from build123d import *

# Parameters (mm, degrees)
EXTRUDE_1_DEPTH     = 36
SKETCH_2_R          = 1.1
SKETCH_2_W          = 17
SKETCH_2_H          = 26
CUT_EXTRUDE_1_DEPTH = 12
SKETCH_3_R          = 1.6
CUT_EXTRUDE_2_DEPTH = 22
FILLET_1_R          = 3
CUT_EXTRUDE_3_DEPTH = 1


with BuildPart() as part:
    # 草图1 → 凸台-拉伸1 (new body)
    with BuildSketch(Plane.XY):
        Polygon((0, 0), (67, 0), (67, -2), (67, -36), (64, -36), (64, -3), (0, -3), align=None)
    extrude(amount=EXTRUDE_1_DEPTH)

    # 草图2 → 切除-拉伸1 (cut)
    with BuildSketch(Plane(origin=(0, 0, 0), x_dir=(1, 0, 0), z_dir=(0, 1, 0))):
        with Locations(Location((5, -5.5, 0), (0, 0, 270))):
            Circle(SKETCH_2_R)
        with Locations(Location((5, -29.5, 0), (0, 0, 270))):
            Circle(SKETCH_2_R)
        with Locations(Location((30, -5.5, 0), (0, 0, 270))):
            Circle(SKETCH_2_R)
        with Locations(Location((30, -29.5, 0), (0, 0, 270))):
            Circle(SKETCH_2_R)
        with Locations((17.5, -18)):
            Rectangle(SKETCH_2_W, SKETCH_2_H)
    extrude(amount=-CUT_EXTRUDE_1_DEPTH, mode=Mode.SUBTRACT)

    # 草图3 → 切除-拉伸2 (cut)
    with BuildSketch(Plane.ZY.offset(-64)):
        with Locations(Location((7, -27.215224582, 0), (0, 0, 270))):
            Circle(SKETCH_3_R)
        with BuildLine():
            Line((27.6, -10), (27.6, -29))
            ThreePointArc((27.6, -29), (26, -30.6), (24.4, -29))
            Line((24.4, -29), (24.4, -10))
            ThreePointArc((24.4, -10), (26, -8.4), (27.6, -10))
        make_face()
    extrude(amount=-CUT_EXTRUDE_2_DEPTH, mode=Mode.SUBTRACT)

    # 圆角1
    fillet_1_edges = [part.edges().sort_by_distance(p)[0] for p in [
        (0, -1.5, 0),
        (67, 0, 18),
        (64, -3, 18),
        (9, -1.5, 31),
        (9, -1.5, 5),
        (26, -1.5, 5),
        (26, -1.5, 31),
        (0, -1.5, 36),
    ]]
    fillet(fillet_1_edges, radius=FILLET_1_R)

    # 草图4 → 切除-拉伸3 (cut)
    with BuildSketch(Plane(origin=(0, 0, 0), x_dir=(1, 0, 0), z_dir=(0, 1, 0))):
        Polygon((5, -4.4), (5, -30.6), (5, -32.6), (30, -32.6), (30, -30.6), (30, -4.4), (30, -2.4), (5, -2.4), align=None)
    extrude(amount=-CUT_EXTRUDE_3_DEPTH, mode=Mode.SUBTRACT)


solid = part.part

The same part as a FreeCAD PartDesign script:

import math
import FreeCAD as App
import Part
import Sketcher


def edges_at(feature, points):
    """Names of the edges that pass closest to the given points."""
    edges = feature.Shape.Edges
    near = lambda p: min(range(len(edges)), key=lambda i: edges[i].distToShape(Part.Vertex(*p))[0])
    return sorted({f"Edge{near(p) + 1}" for p in points})

doc = App.newDocument("Part")
params = doc.addObject("Spreadsheet::Sheet", "Params")
for row, (alias, value) in enumerate([
    ("sketch1_width", "67 mm"),
    ("sketch1_width2", "64 mm"),
    ("sketch1_height", "33 mm"),
    ("pad1_length", "36 mm"),
    ("sketch2_diameter", "2.2 mm"),
    ("sketch2_width", "17 mm"),
    ("sketch2_height", "26 mm"),
    ("pocket1_length", "12 mm"),
    ("sketch3_diameter", "3.2 mm"),
    ("sketch3_width", "19 mm"),
    ("pocket2_length", "22 mm"),
    ("fillet_radius", "3 mm"),
    ("sketch4_width", "25 mm"),
    ("sketch4_height", "30.2 mm"),
    ("pocket3_length", "1 mm"),
], start=1):
    params.set(f"A{row}", alias)
    params.set(f"B{row}", "=" + value)
    params.setAlias(f"B{row}", alias)

body = doc.addObject("PartDesign::Body", "Body")

sketch1 = body.newObject("Sketcher::SketchObject", "Sketch")
sketch1.AttachmentSupport = (doc.getObject("XY_Plane"), [""])
sketch1.MapMode = "FlatFace"
sketch1.addGeometry([
    Part.LineSegment(App.Vector(67, 0, 0), App.Vector(0, 0, 0)),
    Part.LineSegment(App.Vector(0, 0, 0), App.Vector(0, -3, 0)),
    Part.LineSegment(App.Vector(0, -3, 0), App.Vector(64, -3, 0)),
    Part.LineSegment(App.Vector(64, -3, 0), App.Vector(64, -36, 0)),
    Part.LineSegment(App.Vector(64, -36, 0), App.Vector(67, -36, 0)),
    Part.LineSegment(App.Vector(67, -36, 0), App.Vector(67, 0, 0)),
], False)
sketch1.addConstraint([
    Sketcher.Constraint("Coincident", 0, 2, 1, 1),
    Sketcher.Constraint("Coincident", 1, 2, 2, 1),
    Sketcher.Constraint("Coincident", 2, 2, 3, 1),
    Sketcher.Constraint("Coincident", 3, 2, 4, 1),
    Sketcher.Constraint("Coincident", 4, 2, 5, 1),
    Sketcher.Constraint("Coincident", 5, 2, 0, 1),
    Sketcher.Constraint("Horizontal", 0),
    Sketcher.Constraint("Vertical", 1),
    Sketcher.Constraint("Horizontal", 2),
    Sketcher.Constraint("Vertical", 3),
    Sketcher.Constraint("Horizontal", 4),
    Sketcher.Constraint("Vertical", 5),
    Sketcher.Constraint("Coincident", 0, 2, -1, 1),
    Sketcher.Constraint("Equal", 4, 1),
    Sketcher.Constraint("DistanceX", 0, 2, 0, 1, 67.0),
    Sketcher.Constraint("DistanceX", 2, 1, 2, 2, 64.0),
    Sketcher.Constraint("DistanceY", 3, 2, 3, 1, 33.0),
])
sketch1.setExpression("Constraints[14]", "Params.sketch1_width")
sketch1.setExpression("Constraints[15]", "Params.sketch1_width2")
sketch1.setExpression("Constraints[16]", "Params.sketch1_height")
pad1 = body.newObject("PartDesign::Pad", "Pad")
pad1.Profile = sketch1
pad1.setExpression("Length", "Params.pad1_length")

sketch2 = body.newObject("Sketcher::SketchObject", "Sketch001")
sketch2.AttachmentSupport = (doc.getObject("XZ_Plane"), [""])
sketch2.MapMode = "FlatFace"
sketch2.addGeometry([
    Part.Circle(App.Vector(5, 5.5, 0), App.Vector(0, 0, 1), 1.1),
    Part.Circle(App.Vector(5, 29.5, 0), App.Vector(0, 0, 1), 1.1),
    Part.Circle(App.Vector(30, 5.5, 0), App.Vector(0, 0, 1), 1.1),
    Part.Circle(App.Vector(30, 29.5, 0), App.Vector(0, 0, 1), 1.1),
    Part.LineSegment(App.Vector(9, 5, 0), App.Vector(9, 31, 0)),
    Part.LineSegment(App.Vector(9, 31, 0), App.Vector(26, 31, 0)),
    Part.LineSegment(App.Vector(26, 31, 0), App.Vector(26, 5, 0)),
    Part.LineSegment(App.Vector(26, 5, 0), App.Vector(9, 5, 0)),
], False)
sketch2.addConstraint([
    Sketcher.Constraint("Coincident", 4, 2, 5, 1),
    Sketcher.Constraint("Coincident", 5, 2, 6, 1),
    Sketcher.Constraint("Coincident", 6, 2, 7, 1),
    Sketcher.Constraint("Coincident", 7, 2, 4, 1),
    Sketcher.Constraint("Vertical", 4),
    Sketcher.Constraint("Horizontal", 5),
    Sketcher.Constraint("Vertical", 6),
    Sketcher.Constraint("Horizontal", 7),
    Sketcher.Constraint("Equal", 0, 1),
    Sketcher.Constraint("Equal", 1, 2),
    Sketcher.Constraint("Equal", 2, 3),
    Sketcher.Constraint("Horizontal", 0, 3, 2, 3),
    Sketcher.Constraint("Horizontal", 1, 3, 3, 3),
    Sketcher.Constraint("Vertical", 0, 3, 1, 3),
    Sketcher.Constraint("Vertical", 2, 3, 3, 3),
    Sketcher.Constraint("Diameter", 0, 2.2),
    Sketcher.Constraint("DistanceX", 5, 1, 5, 2, 17.0),
    Sketcher.Constraint("DistanceY", 4, 1, 4, 2, 26.0),
    Sketcher.Constraint("DistanceX", -1, 1, 0, 3, 5.0),
    Sketcher.Constraint("DistanceX", -1, 1, 2, 3, 30.0),
    Sketcher.Constraint("DistanceX", -1, 1, 4, 2, 9.0),
    Sketcher.Constraint("DistanceY", -1, 1, 4, 2, 31.0),
    Sketcher.Constraint("DistanceY", 0, 3, 1, 3, 24.0),
    Sketcher.Constraint("DistanceY", -1, 1, 0, 3, 5.5),
])
sketch2.setExpression("Constraints[15]", "Params.sketch2_diameter")
sketch2.setExpression("Constraints[16]", "Params.sketch2_width")
sketch2.setExpression("Constraints[17]", "Params.sketch2_height")
pocket1 = body.newObject("PartDesign::Pocket", "Pocket")
pocket1.Profile = sketch2
pocket1.setExpression("Length", "Params.pocket1_length")
pocket1.Reversed = True

sketch3 = body.newObject("Sketcher::SketchObject", "Sketch002")
sketch3.AttachmentSupport = (doc.getObject("YZ_Plane"), [""])
sketch3.MapMode = "FlatFace"
sketch3.AttachmentOffset = App.Placement(App.Vector(0, 0, 64), App.Rotation())
sketch3.addGeometry([
    Part.Circle(App.Vector(-27.215225, 7, 0), App.Vector(0, 0, 1), 1.6),
    Part.LineSegment(App.Vector(-29, 27.6, 0), App.Vector(-10, 27.6, 0)),
    Part.ArcOfCircle(Part.Circle(App.Vector(-10, 26, 0), App.Vector(0, 0, 1), 1.6), math.radians(-90), math.radians(90)),
    Part.LineSegment(App.Vector(-10, 24.4, 0), App.Vector(-29, 24.4, 0)),
    Part.ArcOfCircle(Part.Circle(App.Vector(-29, 26, 0), App.Vector(0, 0, 1), 1.6), math.radians(90), math.radians(270)),
], False)
sketch3.addConstraint([
    Sketcher.Constraint("Tangent", 1, 2, 2, 2),
    Sketcher.Constraint("Tangent", 2, 1, 3, 1),
    Sketcher.Constraint("Tangent", 3, 2, 4, 2),
    Sketcher.Constraint("Tangent", 4, 1, 1, 1),
    Sketcher.Constraint("Horizontal", 1),
    Sketcher.Constraint("Horizontal", 3),
    Sketcher.Constraint("Equal", 0, 2),
    Sketcher.Constraint("Diameter", 0, 3.2),
    Sketcher.Constraint("DistanceX", 1, 1, 1, 2, 19.0),
    Sketcher.Constraint("DistanceY", -1, 1, 0, 3, 7.0),
    Sketcher.Constraint("DistanceX", 2, 3, -1, 1, 10.0),
    Sketcher.Constraint("DistanceY", -1, 1, 2, 3, 26.0),
    Sketcher.Constraint("DistanceX", 0, 3, -1, 1, 27.215225),
])
sketch3.setExpression("Constraints[7]", "Params.sketch3_diameter")
sketch3.setExpression("Constraints[8]", "Params.sketch3_width")
pocket2 = body.newObject("PartDesign::Pocket", "Pocket001")
pocket2.Profile = sketch3
pocket2.setExpression("Length", "Params.pocket2_length")
pocket2.Reversed = True
doc.recompute()

fillet = body.newObject("PartDesign::Fillet", "Fillet")
fillet.Base = (pocket2, edges_at(pocket2, [
    (0, -1.5, 0),
    (67, 0, 18),
    (64, -3, 18),
    (9, -1.5, 31),
    (9, -1.5, 5),
    (26, -1.5, 5),
    (26, -1.5, 31),
    (0, -1.5, 36),
]))
fillet.setExpression("Radius", "Params.fillet_radius")

sketch4 = body.newObject("Sketcher::SketchObject", "Sketch003")
sketch4.AttachmentSupport = (doc.getObject("XZ_Plane"), [""])
sketch4.MapMode = "FlatFace"
sketch4.addGeometry([
    Part.LineSegment(App.Vector(5, 32.6, 0), App.Vector(30, 32.6, 0)),
    Part.LineSegment(App.Vector(30, 32.6, 0), App.Vector(30, 2.4, 0)),
    Part.LineSegment(App.Vector(30, 2.4, 0), App.Vector(5, 2.4, 0)),
    Part.LineSegment(App.Vector(5, 2.4, 0), App.Vector(5, 32.6, 0)),
], False)
sketch4.addConstraint([
    Sketcher.Constraint("Coincident", 0, 2, 1, 1),
    Sketcher.Constraint("Coincident", 1, 2, 2, 1),
    Sketcher.Constraint("Coincident", 2, 2, 3, 1),
    Sketcher.Constraint("Coincident", 3, 2, 0, 1),
    Sketcher.Constraint("Horizontal", 0),
    Sketcher.Constraint("Vertical", 1),
    Sketcher.Constraint("Horizontal", 2),
    Sketcher.Constraint("Vertical", 3),
    Sketcher.Constraint("DistanceX", 0, 1, 0, 2, 25.0),
    Sketcher.Constraint("DistanceY", 1, 2, 1, 1, 30.2),
    Sketcher.Constraint("DistanceX", -1, 1, 0, 2, 30.0),
    Sketcher.Constraint("DistanceY", -1, 1, 0, 2, 32.6),
])
sketch4.setExpression("Constraints[8]", "Params.sketch4_width")
sketch4.setExpression("Constraints[9]", "Params.sketch4_height")
pocket3 = body.newObject("PartDesign::Pocket", "Pocket002")
pocket3.Profile = sketch4
pocket3.setExpression("Length", "Params.pocket3_length")
pocket3.Reversed = True

doc.recompute()
